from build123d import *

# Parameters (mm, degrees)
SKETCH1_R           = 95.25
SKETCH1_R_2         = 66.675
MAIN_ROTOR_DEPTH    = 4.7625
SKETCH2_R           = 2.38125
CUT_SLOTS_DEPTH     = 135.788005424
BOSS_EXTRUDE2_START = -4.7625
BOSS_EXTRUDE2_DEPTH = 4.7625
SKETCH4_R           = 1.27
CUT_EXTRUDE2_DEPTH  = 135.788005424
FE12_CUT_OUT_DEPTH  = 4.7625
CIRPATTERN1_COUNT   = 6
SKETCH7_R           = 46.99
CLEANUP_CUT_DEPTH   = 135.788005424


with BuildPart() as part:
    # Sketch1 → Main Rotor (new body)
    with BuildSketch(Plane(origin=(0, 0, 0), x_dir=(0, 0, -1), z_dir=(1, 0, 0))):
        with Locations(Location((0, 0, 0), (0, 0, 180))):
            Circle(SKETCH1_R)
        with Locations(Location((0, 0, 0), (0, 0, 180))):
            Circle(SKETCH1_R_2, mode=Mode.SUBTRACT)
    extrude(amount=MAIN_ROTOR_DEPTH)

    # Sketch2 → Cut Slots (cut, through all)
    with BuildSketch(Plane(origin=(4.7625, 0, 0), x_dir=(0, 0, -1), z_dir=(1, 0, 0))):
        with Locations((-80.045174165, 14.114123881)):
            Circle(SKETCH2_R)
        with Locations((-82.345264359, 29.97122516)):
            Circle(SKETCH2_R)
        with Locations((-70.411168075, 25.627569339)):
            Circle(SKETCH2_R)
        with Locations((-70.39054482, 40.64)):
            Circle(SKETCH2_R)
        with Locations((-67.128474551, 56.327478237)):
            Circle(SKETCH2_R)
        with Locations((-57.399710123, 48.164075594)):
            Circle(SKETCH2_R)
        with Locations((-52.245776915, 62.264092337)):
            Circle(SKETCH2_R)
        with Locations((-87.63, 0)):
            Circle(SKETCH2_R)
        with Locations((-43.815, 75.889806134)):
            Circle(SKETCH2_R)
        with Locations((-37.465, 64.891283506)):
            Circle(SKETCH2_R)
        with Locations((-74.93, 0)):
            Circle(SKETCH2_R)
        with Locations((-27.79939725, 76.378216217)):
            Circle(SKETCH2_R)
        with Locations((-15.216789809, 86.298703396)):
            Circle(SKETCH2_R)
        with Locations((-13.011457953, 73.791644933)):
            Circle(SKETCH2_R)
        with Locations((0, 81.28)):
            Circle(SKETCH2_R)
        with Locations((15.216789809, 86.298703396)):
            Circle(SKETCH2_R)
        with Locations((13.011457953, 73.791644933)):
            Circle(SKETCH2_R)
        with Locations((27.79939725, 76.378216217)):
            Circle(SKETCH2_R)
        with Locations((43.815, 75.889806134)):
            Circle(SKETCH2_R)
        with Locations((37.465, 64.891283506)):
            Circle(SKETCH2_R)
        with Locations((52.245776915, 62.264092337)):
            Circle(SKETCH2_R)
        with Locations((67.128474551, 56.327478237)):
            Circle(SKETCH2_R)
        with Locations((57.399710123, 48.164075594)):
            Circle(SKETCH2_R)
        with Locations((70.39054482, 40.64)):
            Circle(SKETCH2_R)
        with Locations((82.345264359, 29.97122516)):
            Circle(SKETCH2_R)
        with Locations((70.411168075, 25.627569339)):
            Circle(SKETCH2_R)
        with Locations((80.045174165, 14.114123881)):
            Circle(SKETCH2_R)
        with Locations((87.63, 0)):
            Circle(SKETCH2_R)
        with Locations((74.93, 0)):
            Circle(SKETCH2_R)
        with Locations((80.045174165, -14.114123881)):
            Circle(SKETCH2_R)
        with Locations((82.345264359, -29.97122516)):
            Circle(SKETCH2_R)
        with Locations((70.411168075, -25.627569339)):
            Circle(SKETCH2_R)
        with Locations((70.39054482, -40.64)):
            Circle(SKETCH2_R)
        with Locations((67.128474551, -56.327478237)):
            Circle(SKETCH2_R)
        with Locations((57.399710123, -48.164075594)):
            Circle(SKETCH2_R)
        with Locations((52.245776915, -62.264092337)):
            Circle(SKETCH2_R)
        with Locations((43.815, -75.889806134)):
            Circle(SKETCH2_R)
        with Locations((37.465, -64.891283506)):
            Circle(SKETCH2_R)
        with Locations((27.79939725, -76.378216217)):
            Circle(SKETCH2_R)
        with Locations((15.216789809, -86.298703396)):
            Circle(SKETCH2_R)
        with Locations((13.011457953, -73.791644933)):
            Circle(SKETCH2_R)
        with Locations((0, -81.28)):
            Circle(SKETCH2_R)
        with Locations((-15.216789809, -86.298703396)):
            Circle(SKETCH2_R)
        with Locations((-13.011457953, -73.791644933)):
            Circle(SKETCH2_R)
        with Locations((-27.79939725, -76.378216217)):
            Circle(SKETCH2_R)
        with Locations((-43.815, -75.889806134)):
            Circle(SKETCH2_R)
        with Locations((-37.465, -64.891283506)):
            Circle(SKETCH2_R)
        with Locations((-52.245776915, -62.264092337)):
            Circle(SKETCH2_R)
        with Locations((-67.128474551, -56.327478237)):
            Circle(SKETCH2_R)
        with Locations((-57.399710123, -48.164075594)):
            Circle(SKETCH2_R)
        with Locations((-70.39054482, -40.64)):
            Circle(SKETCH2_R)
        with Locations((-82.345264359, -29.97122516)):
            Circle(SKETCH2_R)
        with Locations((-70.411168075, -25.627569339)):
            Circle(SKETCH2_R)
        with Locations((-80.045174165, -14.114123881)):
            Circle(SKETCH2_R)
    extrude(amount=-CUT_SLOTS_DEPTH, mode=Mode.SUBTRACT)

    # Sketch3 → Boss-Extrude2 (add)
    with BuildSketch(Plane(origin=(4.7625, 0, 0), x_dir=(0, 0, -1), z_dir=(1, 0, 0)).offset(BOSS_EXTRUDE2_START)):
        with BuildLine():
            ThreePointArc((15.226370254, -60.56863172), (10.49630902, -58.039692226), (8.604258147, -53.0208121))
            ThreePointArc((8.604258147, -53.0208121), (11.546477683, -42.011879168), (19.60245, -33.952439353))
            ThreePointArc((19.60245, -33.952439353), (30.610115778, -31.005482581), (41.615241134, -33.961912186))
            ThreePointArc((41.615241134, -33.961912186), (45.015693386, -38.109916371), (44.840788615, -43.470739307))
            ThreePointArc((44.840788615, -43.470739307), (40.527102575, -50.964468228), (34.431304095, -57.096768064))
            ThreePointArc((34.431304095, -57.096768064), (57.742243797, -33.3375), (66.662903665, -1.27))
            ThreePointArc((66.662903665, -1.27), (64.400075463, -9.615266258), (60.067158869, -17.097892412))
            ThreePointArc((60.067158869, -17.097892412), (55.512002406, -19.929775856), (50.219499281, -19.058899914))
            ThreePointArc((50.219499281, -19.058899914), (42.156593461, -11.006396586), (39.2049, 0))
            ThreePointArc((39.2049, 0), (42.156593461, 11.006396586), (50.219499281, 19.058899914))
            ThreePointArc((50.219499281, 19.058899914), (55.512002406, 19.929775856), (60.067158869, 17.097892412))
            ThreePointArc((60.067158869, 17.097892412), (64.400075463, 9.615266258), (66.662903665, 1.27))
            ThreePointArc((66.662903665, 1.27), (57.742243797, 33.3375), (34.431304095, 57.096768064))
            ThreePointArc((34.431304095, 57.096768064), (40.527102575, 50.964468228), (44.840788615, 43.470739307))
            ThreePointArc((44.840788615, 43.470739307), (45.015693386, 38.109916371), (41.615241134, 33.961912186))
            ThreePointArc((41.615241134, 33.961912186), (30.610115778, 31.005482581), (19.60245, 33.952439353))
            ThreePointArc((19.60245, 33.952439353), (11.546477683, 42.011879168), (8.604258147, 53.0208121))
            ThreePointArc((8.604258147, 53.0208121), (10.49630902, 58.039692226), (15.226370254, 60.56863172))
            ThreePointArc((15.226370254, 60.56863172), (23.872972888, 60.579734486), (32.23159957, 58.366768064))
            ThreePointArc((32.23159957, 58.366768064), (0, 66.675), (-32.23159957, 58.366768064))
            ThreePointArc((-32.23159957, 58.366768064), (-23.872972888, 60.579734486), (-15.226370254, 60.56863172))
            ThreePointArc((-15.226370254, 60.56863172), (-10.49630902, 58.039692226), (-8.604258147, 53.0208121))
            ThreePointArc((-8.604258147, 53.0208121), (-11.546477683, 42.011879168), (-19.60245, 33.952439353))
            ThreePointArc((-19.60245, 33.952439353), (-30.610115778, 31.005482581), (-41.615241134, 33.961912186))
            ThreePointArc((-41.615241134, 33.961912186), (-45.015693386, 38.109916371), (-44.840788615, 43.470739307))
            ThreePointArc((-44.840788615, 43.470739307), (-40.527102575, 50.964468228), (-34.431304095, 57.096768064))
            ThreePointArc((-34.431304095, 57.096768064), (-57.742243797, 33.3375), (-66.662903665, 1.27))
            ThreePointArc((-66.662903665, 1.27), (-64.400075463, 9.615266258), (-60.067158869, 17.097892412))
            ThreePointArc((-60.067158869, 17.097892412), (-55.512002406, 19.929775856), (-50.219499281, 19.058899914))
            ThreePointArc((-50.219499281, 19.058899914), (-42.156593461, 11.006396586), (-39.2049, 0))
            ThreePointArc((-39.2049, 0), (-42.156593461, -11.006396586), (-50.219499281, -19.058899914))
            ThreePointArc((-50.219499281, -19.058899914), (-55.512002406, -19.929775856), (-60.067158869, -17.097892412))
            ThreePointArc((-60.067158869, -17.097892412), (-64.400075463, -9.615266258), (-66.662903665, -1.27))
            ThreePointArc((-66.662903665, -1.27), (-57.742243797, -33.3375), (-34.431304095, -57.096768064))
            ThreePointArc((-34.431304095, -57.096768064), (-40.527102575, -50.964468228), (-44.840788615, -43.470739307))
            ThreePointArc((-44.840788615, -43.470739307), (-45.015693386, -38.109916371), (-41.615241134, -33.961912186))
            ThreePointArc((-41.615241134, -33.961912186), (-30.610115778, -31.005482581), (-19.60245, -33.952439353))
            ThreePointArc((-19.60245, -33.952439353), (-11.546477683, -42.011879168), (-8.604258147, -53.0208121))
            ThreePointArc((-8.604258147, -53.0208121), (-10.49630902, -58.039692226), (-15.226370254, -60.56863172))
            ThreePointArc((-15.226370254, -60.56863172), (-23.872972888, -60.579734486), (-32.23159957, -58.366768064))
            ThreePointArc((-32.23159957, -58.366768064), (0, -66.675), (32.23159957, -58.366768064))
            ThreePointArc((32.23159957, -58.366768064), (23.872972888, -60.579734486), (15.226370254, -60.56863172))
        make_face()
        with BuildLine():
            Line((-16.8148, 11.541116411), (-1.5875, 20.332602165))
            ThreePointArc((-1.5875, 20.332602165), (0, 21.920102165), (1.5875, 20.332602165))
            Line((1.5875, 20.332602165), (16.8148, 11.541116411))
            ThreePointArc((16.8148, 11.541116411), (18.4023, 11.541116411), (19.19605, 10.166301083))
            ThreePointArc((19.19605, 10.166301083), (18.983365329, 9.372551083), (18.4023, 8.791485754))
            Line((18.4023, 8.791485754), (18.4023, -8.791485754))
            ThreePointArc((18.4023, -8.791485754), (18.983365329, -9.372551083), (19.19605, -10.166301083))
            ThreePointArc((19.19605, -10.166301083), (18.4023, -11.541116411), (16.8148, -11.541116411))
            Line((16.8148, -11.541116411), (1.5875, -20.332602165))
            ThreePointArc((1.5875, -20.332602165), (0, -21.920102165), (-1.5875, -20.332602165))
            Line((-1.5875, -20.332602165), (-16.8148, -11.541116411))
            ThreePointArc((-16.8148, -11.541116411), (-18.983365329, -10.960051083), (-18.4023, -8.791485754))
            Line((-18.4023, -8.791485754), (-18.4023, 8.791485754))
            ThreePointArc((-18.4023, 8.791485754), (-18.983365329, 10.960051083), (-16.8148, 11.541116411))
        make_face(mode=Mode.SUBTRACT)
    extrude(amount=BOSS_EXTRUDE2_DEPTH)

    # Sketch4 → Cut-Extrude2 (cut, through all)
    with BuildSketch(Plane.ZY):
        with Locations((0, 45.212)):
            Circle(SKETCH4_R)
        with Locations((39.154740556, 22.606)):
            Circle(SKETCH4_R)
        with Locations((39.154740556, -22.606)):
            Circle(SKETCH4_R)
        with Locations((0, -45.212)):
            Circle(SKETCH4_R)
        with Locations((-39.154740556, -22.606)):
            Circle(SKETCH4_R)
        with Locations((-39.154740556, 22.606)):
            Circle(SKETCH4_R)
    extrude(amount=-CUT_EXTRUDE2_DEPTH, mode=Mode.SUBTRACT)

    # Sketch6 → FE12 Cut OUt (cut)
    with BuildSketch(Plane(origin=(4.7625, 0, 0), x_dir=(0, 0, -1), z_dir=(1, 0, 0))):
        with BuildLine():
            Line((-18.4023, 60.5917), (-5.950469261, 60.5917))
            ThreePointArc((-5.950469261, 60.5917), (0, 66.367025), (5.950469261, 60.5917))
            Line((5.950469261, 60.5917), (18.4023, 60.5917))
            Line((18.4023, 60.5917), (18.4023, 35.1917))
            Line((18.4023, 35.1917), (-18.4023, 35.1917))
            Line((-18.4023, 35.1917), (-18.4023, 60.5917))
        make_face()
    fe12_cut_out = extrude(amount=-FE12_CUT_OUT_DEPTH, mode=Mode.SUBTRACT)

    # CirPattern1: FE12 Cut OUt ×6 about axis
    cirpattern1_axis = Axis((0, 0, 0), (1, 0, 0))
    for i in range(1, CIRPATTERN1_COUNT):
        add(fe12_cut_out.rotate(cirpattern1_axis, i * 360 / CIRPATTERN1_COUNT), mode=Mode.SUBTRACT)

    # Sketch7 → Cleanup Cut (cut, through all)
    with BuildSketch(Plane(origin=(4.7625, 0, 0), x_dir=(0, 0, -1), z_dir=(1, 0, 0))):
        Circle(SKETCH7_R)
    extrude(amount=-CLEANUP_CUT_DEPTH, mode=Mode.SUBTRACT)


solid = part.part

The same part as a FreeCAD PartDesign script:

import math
import FreeCAD as App
import Part
import Sketcher

V = App.Vector
Q = App.Units.Quantity

doc = App.newDocument("Part")
params = doc.addObject("Spreadsheet::Sheet", "Params")
for row, (alias, value) in enumerate([
    ("sketch1_diameter", "7.5 in"),
    ("sketch1_diameter2", "5.25 in"),
    ("pad1_length", "0.1875 in"),
    ("sketch2_diameter", "0.1875 in"),
    ("sketch3_radius", "0.3 in"),
    ("sketch3_radius2", "0.866 in"),
    ("sketch3_radius3", "1.3125 in"),
    ("sketch3_radius4", "2.625 in"),
    ("sketch3_radius5", "0.0625 in"),
    ("pad2_length", "0.1875 in"),
    ("sketch4_diameter", "0.1 in"),
    ("sketch5_width", "1 in"),
    ("sketch5_radius", "0.234375 in"),
    ("sketch5_height", "1.449 in"),
    ("pocket3_length", "0.1875 in"),
    ("sketch6_diameter", "3.7 in"),
], start=1):
    params.set(f"A{row}", alias)
    params.set(f"B{row}", "=" + value)
    params.setAlias(f"B{row}", alias)

body = doc.addObject("PartDesign::Body", "Body")
body.AllowCompound = True

# Sketch on YZ plane
sketch1 = body.newObject("Sketcher::SketchObject", "Sketch")
sketch1.AttachmentSupport = (doc.getObject("YZ_Plane"), [""])
sketch1.MapMode = "FlatFace"
sketch1.addGeometry([
    Part.Circle(V(0, 0, 0), V(0, 0, 1), 95),
    Part.Circle(V(0, 0, 0), V(0, 0, 1), 67),
], False)
sketch1.addConstraint([
    Sketcher.Constraint("Coincident", 0, 3, -1, 1),
    Sketcher.Constraint("Coincident", 1, 3, -1, 1),
    Sketcher.Constraint("Diameter", 0, Q("7.5 in")),
    Sketcher.Constraint("Diameter", 1, Q("5.25 in")),
])
sketch1.setExpression("Constraints[2]", "Params.sketch1_diameter")
sketch1.setExpression("Constraints[3]", "Params.sketch1_diameter2")
pad1 = body.newObject("PartDesign::Pad", "Pad")
pad1.Profile = sketch1
pad1.setExpression("Length", "Params.pad1_length")

# Sketch on YZ plane
sketch2 = body.newObject("Sketcher::SketchObject", "Sketch001")
sketch2.AttachmentSupport = (doc.getObject("YZ_Plane"), [""])
sketch2.MapMode = "FlatFace"
sketch2.AttachmentOffset = App.Placement(V(0, 0, 0.1875 * 25.4), App.Rotation())
sketch2.addGeometry([
    Part.Circle(V(14.1, 80, 0), V(0, 0, 1), 2.4),  # 0
    Part.Circle(V(30, 82.3, 0), V(0, 0, 1), 2.4),  # 1
    Part.Circle(V(25.6, 70.4, 0), V(0, 0, 1), 2.4),  # 2
    Part.Circle(V(40.6, 70.4, 0), V(0, 0, 1), 2.4),  # 3
    Part.Circle(V(56.3, 67.1, 0), V(0, 0, 1), 2.4),  # 4
    Part.Circle(V(48.2, 57.4, 0), V(0, 0, 1), 2.4),  # 5
    Part.Circle(V(62.3, 52.2, 0), V(0, 0, 1), 2.4),  # 6
    Part.Circle(V(0, 87.6, 0), V(0, 0, 1), 2.4),  # 7
    Part.Circle(V(75.9, 43.8, 0), V(0, 0, 1), 2.4),  # 8
    Part.Circle(V(64.9, 37.5, 0), V(0, 0, 1), 2.4),  # 9
    Part.Circle(V(0, 74.9, 0), V(0, 0, 1), 2.4),  # 10
    Part.Circle(V(76.4, 27.8, 0), V(0, 0, 1), 2.4),  # 11
    Part.Circle(V(86.3, 15.2, 0), V(0, 0, 1), 2.4),  # 12
    Part.Circle(V(73.8, 13, 0), V(0, 0, 1), 2.4),  # 13
    Part.Circle(V(81.3, 0, 0), V(0, 0, 1), 2.4),  # 14
    Part.Circle(V(86.3, -15.2, 0), V(0, 0, 1), 2.4),  # 15
    Part.Circle(V(73.8, -13, 0), V(0, 0, 1), 2.4),  # 16
    Part.Circle(V(76.4, -27.8, 0), V(0, 0, 1), 2.4),  # 17
    Part.Circle(V(75.9, -43.8, 0), V(0, 0, 1), 2.4),  # 18
    Part.Circle(V(64.9, -37.5, 0), V(0, 0, 1), 2.4),  # 19
    Part.Circle(V(62.3, -52.2, 0), V(0, 0, 1), 2.4),  # 20
    Part.Circle(V(56.3, -67.1, 0), V(0, 0, 1), 2.4),  # 21
    Part.Circle(V(48.2, -57.4, 0), V(0, 0, 1), 2.4),  # 22
    Part.Circle(V(40.6, -70.4, 0), V(0, 0, 1), 2.4),  # 23
    Part.Circle(V(30, -82.3, 0), V(0, 0, 1), 2.4),  # 24
    Part.Circle(V(25.6, -70.4, 0), V(0, 0, 1), 2.4),  # 25
    Part.Circle(V(14.1, -80, 0), V(0, 0, 1), 2.4),  # 26
    Part.Circle(V(0, -87.6, 0), V(0, 0, 1), 2.4),  # 27
    Part.Circle(V(0, -74.9, 0), V(0, 0, 1), 2.4),  # 28
    Part.Circle(V(-14.1, -80, 0), V(0, 0, 1), 2.4),  # 29
    Part.Circle(V(-30, -82.3, 0), V(0, 0, 1), 2.4),  # 30
    Part.Circle(V(-25.6, -70.4, 0), V(0, 0, 1), 2.4),  # 31
    Part.Circle(V(-40.6, -70.4, 0), V(0, 0, 1), 2.4),  # 32
    Part.Circle(V(-56.3, -67.1, 0), V(0, 0, 1), 2.4),  # 33
    Part.Circle(V(-48.2, -57.4, 0), V(0, 0, 1), 2.4),  # 34
    Part.Circle(V(-62.3, -52.2, 0), V(0, 0, 1), 2.4),  # 35
    Part.Circle(V(-75.9, -43.8, 0), V(0, 0, 1), 2.4),  # 36
    Part.Circle(V(-64.9, -37.5, 0), V(0, 0, 1), 2.4),  # 37
    Part.Circle(V(-76.4, -27.8, 0), V(0, 0, 1), 2.4),  # 38
    Part.Circle(V(-86.3, -15.2, 0), V(0, 0, 1), 2.4),  # 39
    Part.Circle(V(-73.8, -13, 0), V(0, 0, 1), 2.4),  # 40
    Part.Circle(V(-81.3, 0, 0), V(0, 0, 1), 2.4),  # 41
    Part.Circle(V(-86.3, 15.2, 0), V(0, 0, 1), 2.4),  # 42
    Part.Circle(V(-73.8, 13, 0), V(0, 0, 1), 2.4),  # 43
    Part.Circle(V(-76.4, 27.8, 0), V(0, 0, 1), 2.4),  # 44
    Part.Circle(V(-75.9, 43.8, 0), V(0, 0, 1), 2.4),  # 45
    Part.Circle(V(-64.9, 37.5, 0), V(0, 0, 1), 2.4),  # 46
    Part.Circle(V(-62.3, 52.2, 0), V(0, 0, 1), 2.4),  # 47
    Part.Circle(V(-56.3, 67.1, 0), V(0, 0, 1), 2.4),  # 48
    Part.Circle(V(-48.2, 57.4, 0), V(0, 0, 1), 2.4),  # 49
    Part.Circle(V(-40.6, 70.4, 0), V(0, 0, 1), 2.4),  # 50
    Part.Circle(V(-30, 82.3, 0), V(0, 0, 1), 2.4),  # 51
    Part.Circle(V(-25.6, 70.4, 0), V(0, 0, 1), 2.4),  # 52
    Part.Circle(V(-14.1, 80, 0), V(0, 0, 1), 2.4),  # 53
], False)
sketch2.addConstraint([
    Sketcher.Constraint("Equal", 0, 1),
    Sketcher.Constraint("Equal", 1, 2),
    Sketcher.Constraint("Equal", 2, 3),
    Sketcher.Constraint("Equal", 3, 4),
    Sketcher.Constraint("Equal", 4, 5),
    Sketcher.Constraint("Equal", 5, 6),
    Sketcher.Constraint("Equal", 6, 7),
    Sketcher.Constraint("Equal", 7, 8),
    Sketcher.Constraint("Equal", 8, 9),
    Sketcher.Constraint("Equal", 9, 10),
    Sketcher.Constraint("Equal", 10, 11),
    Sketcher.Constraint("Equal", 11, 12),
    Sketcher.Constraint("Equal", 12, 13),
    Sketcher.Constraint("Equal", 13, 14),
    Sketcher.Constraint("Equal", 14, 15),
    Sketcher.Constraint("Equal", 15, 16),
    Sketcher.Constraint("Equal", 16, 17),
    Sketcher.Constraint("Equal", 17, 18),
    Sketcher.Constraint("Equal", 18, 19),
    Sketcher.Constraint("Equal", 19, 20),
    Sketcher.Constraint("Equal", 20, 21),
    Sketcher.Constraint("Equal", 21, 22),
    Sketcher.Constraint("Equal", 22, 23),
    Sketcher.Constraint("Equal", 23, 24),
    Sketcher.Constraint("Equal", 24, 25),
    Sketcher.Constraint("Equal", 25, 26),
    Sketcher.Constraint("Equal", 26, 27),
    Sketcher.Constraint("Equal", 27, 28),
    Sketcher.Constraint("Equal", 28, 29),
    Sketcher.Constraint("Equal", 29, 30),
    Sketcher.Constraint("Equal", 30, 31),
    Sketcher.Constraint("Equal", 31, 32),
    Sketcher.Constraint("Equal", 32, 33),
    Sketcher.Constraint("Equal", 33, 34),
    Sketcher.Constraint("Equal", 34, 35),
    Sketcher.Constraint("Equal", 35, 36),
    Sketcher.Constraint("Equal", 36, 37),
    Sketcher.Constraint("Equal", 37, 38),
    Sketcher.Constraint("Equal", 38, 39),
    Sketcher.Constraint("Equal", 39, 40),
    Sketcher.Constraint("Equal", 40, 41),
    Sketcher.Constraint("Equal", 41, 42),
    Sketcher.Constraint("Equal", 42, 43),
    Sketcher.Constraint("Equal", 43, 44),
    Sketcher.Constraint("Equal", 44, 45),
    Sketcher.Constraint("Equal", 45, 46),
    Sketcher.Constraint("Equal", 46, 47),
    Sketcher.Constraint("Equal", 47, 48),
    Sketcher.Constraint("Equal", 48, 49),
    Sketcher.Constraint("Equal", 49, 50),
    Sketcher.Constraint("Equal", 50, 51),
    Sketcher.Constraint("Equal", 51, 52),
    Sketcher.Constraint("Equal", 52, 53),
    Sketcher.Constraint("Symmetric", 7, 3, 27, 3, -1, 1),
    Sketcher.Constraint("Symmetric", 10, 3, 28, 3, -1, 1),
    Sketcher.Constraint("Symmetric", 0, 3, 29, 3, -1, 1),
    Sketcher.Constraint("Symmetric", 1, 3, 30, 3, -1, 1),
    Sketcher.Constraint("Symmetric", 2, 3, 31, 3, -1, 1),
    Sketcher.Constraint("Symmetric", 3, 3, 32, 3, -1, 1),
    Sketcher.Constraint("Symmetric", 4, 3, 33, 3, -1, 1),
    Sketcher.Constraint("Symmetric", 5, 3, 34, 3, -1, 1),
    Sketcher.Constraint("Symmetric", 6, 3, 35, 3, -1, 1),
    Sketcher.Constraint("Symmetric", 8, 3, 36, 3, -1, 1),
    Sketcher.Constraint("Symmetric", 9, 3, 37, 3, -1, 1),
    Sketcher.Constraint("Symmetric", 11, 3, 38, 3, -1, 1),
    Sketcher.Constraint("Symmetric", 12, 3, 39, 3, -1, 1),
    Sketcher.Constraint("Symmetric", 13, 3, 40, 3, -1, 1),
    Sketcher.Constraint("Symmetric", 14, 3, 41, 3, -1, 1),
    Sketcher.Constraint("Symmetric", 15, 3, 42, 3, -1, 1),
    Sketcher.Constraint("Symmetric", 16, 3, 43, 3, -1, 1),
    Sketcher.Constraint("Symmetric", 17, 3, 44, 3, -1, 1),
    Sketcher.Constraint("Symmetric", 18, 3, 45, 3, -1, 1),
    Sketcher.Constraint("Symmetric", 19, 3, 46, 3, -1, 1),
    Sketcher.Constraint("Symmetric", 20, 3, 47, 3, -1, 1),
    Sketcher.Constraint("Symmetric", 21, 3, 48, 3, -1, 1),
    Sketcher.Constraint("Symmetric", 22, 3, 49, 3, -1, 1),
    Sketcher.Constraint("Symmetric", 23, 3, 50, 3, -1, 1),
    Sketcher.Constraint("Symmetric", 24, 3, 51, 3, -1, 1),
    Sketcher.Constraint("Symmetric", 25, 3, 52, 3, -1, 1),
    Sketcher.Constraint("Symmetric", 26, 3, 53, 3, -1, 1),
    Sketcher.Constraint("Symmetric", 26, 3, 29, 3, -2),
    Sketcher.Constraint("Symmetric", 24, 3, 30, 3, -2),
    Sketcher.Constraint("Symmetric", 25, 3, 31, 3, -2),
    Sketcher.Constraint("Symmetric", 23, 3, 32, 3, -2),
    Sketcher.Constraint("Symmetric", 21, 3, 33, 3, -2),
    Sketcher.Constraint("Symmetric", 22, 3, 34, 3, -2),
    Sketcher.Constraint("Symmetric", 20, 3, 35, 3, -2),
    Sketcher.Constraint("Symmetric", 18, 3, 36, 3, -2),
    Sketcher.Constraint("Symmetric", 19, 3, 37, 3, -2),
    Sketcher.Constraint("Symmetric", 17, 3, 38, 3, -2),
    Sketcher.Constraint("Symmetric", 15, 3, 39, 3, -2),
    Sketcher.Constraint("Symmetric", 16, 3, 40, 3, -2),
    Sketcher.Constraint("PointOnObject", 7, 3, -2),
    Sketcher.Constraint("PointOnObject", 10, 3, -2),
    Sketcher.Constraint("PointOnObject", 14, 3, -1),
    Sketcher.Constraint("Diameter", 0, Q("0.1875 in")),
    Sketcher.Constraint("DistanceX", -1, 1, 3, 3, Q("1.6 in")),
    Sketcher.Constraint("DistanceX", -1, 1, 14, 3, Q("3.2 in")),
    Sketcher.Constraint("DistanceY", 10, 3, 7, 3, Q("0.5 in")),
    Sketcher.Constraint("DistanceY", -1, 1, 7, 3, Q("3.45 in")),
    Sketcher.Constraint("DistanceY", 9, 3, 8, 3, Q("0.25 in")),
    Sketcher.Constraint("DistanceY", -1, 1, 8, 3, Q("1.725 in")),
    Sketcher.Constraint("DistanceX", 0, 3, 1, 3, Q("15.857101 mm")),
    Sketcher.Constraint("DistanceY", 4, 3, 0, 3, Q("12.9167 mm")),
    Sketcher.Constraint("DistanceX", -1, 1, 2, 3, Q("25.627569 mm")),
    Sketcher.Constraint("DistanceY", -1, 1, 2, 3, Q("70.411168 mm")),
    Sketcher.Constraint("DistanceX", -1, 1, 4, 3, Q("56.327478 mm")),
    Sketcher.Constraint("DistanceY", -1, 1, 5, 3, Q("57.39971 mm")),
    Sketcher.Constraint("DistanceY", -1, 1, 12, 3, Q("15.21679 mm")),
    Sketcher.Constraint("DistanceY", 0, 3, 1, 3, Q("2.30009 mm")),
    Sketcher.Constraint("DistanceY", 3, 3, 1, 3, Q("11.95472 mm")),
    Sketcher.Constraint("DistanceX", 1, 3, 5, 3, Q("18.19285 mm")),
    Sketcher.Constraint("DistanceY", 6, 3, 2, 3, Q("18.165391 mm")),
    Sketcher.Constraint("DistanceX", 5, 3, 8, 3, Q("27.725731 mm")),
    Sketcher.Constraint("DistanceX", 6, 3, 9, 3, Q("2.627191 mm")),
    Sketcher.Constraint("DistanceX", 8, 3, 11, 3, Q("0.48841 mm")),
    Sketcher.Constraint("DistanceY", 11, 3, 6, 3, Q("24.44638 mm")),
    Sketcher.Constraint("DistanceX", 9, 3, 12, 3, Q("21.40742 mm")),
    Sketcher.Constraint("DistanceX", 13, 3, 12, 3, Q("12.507058 mm")),
    Sketcher.Constraint("DistanceY", 13, 3, 12, 3, Q("2.205332 mm")),
    Sketcher.Constraint("DistanceX", 13, 3, 11, 3, Q("2.586571 mm")),
    Sketcher.Constraint("DistanceX", 29, 3, 24, 3, Q("44.085349 mm")),
    Sketcher.Constraint("DistanceY", -1, 1, 0, 3, Q("80.045174 mm")),
])
sketch2.setExpression("Constraints[95]", "Params.sketch2_diameter")
pocket1 = body.newObject("PartDesign::Pocket", "Pocket")
pocket1.Profile = sketch2
pocket1.Type = "ThroughAll"

# Sketch on YZ plane
sketch3 = body.newObject("Sketcher::SketchObject", "Sketch002")
sketch3.AttachmentSupport = (doc.getObject("YZ_Plane"), [""])
sketch3.MapMode = "FlatFace"
sketch3.addGeometry([
    Part.ArcOfCircle(Part.Circle(V(-53, -16.2, 0), V(0, 0, 1), 7.6), math.radians(90), math.radians(172)),  # 0
    Part.ArcOfCircle(Part.Circle(V(-53, -30.6, 0), V(0, 0, 1), 22), math.radians(30), math.radians(90)),  # 1
    Part.ArcOfCircle(Part.Circle(V(-53, -30.6, 0), V(0, 0, 1), 22), math.radians(-30), math.radians(30)),  # 2
    Part.ArcOfCircle(Part.Circle(V(-40.6, -37.8, 0), V(0, 0, 1), 7.6), math.radians(-112), math.radians(-30)),  # 3
    Part.ArcOfCircle(Part.Circle(V(-30.7, -14, 0), V(0, 0, 1), 33.3), math.radians(-142), math.radians(-112)),  # 4
    Part.ArcOfCircle(Part.Circle(V(0, 0, 0), V(0, 0, 1), 66.7), math.radians(-149), math.radians(-91)),  # 5
    Part.ArcOfCircle(Part.Circle(V(3.2, -33.6, 0), V(0, 0, 1), 33.3), math.radians(-128), math.radians(-98)),  # 6
    Part.ArcOfCircle(Part.Circle(V(-12.5, -54, 0), V(0, 0, 1), 7.6), math.radians(150), math.radians(232)),  # 7
    Part.ArcOfCircle(Part.Circle(V(0, -61.2, 0), V(0, 0, 1), 22), math.radians(90), math.radians(150)),  # 8
    Part.ArcOfCircle(Part.Circle(V(0, -61.2, 0), V(0, 0, 1), 22), math.radians(30), math.radians(90)),  # 9
    Part.ArcOfCircle(Part.Circle(V(12.5, -54, 0), V(0, 0, 1), 7.6), math.radians(-52), math.radians(30)),  # 10
    Part.ArcOfCircle(Part.Circle(V(-3.2, -33.6, 0), V(0, 0, 1), 33.3), math.radians(-82), math.radians(-52)),  # 11
    Part.ArcOfCircle(Part.Circle(V(0, 0, 0), V(0, 0, 1), 66.7), math.radians(-89), math.radians(-31)),  # 12
    Part.ArcOfCircle(Part.Circle(V(30.7, -14, 0), V(0, 0, 1), 33.3), math.radians(-68), math.radians(-38)),  # 13
    Part.ArcOfCircle(Part.Circle(V(40.6, -37.8, 0), V(0, 0, 1), 7.6), math.radians(-150), math.radians(-68)),  # 14
    Part.ArcOfCircle(Part.Circle(V(53, -30.6, 0), V(0, 0, 1), 22), math.radians(150), math.radians(210)),  # 15
    Part.ArcOfCircle(Part.Circle(V(53, -30.6, 0), V(0, 0, 1), 22), math.radians(90), math.radians(150)),  # 16
    Part.ArcOfCircle(Part.Circle(V(53, -16.2, 0), V(0, 0, 1), 7.6), math.radians(8), math.radians(90)),  # 17
    Part.ArcOfCircle(Part.Circle(V(27.5, -19.6, 0), V(0, 0, 1), 33.3), math.radians(-22), math.radians(8)),  # 18
    Part.ArcOfCircle(Part.Circle(V(0, 0, 0), V(0, 0, 1), 66.7), math.radians(-29), math.radians(29)),  # 19
    Part.ArcOfCircle(Part.Circle(V(27.5, 19.6, 0), V(0, 0, 1), 33.3), math.radians(-8), math.radians(22)),  # 20
    Part.ArcOfCircle(Part.Circle(V(53, 16.2, 0), V(0, 0, 1), 7.6), math.radians(-90), math.radians(-8)),  # 21
    Part.ArcOfCircle(Part.Circle(V(53, 30.6, 0), V(0, 0, 1), 22), math.radians(-150), math.radians(-90)),  # 22
    Part.ArcOfCircle(Part.Circle(V(53, 30.6, 0), V(0, 0, 1), 22), math.radians(150), math.radians(210)),  # 23
    Part.ArcOfCircle(Part.Circle(V(40.6, 37.8, 0), V(0, 0, 1), 7.6), math.radians(68), math.radians(150)),  # 24
    Part.ArcOfCircle(Part.Circle(V(30.7, 14, 0), V(0, 0, 1), 33.3), math.radians(38), math.radians(68)),  # 25
    Part.ArcOfCircle(Part.Circle(V(0, 0, 0), V(0, 0, 1), 66.7), math.radians(31), math.radians(89)),  # 26
    Part.ArcOfCircle(Part.Circle(V(-3.2, 33.6, 0), V(0, 0, 1), 33.3), math.radians(52), math.radians(82)),  # 27
    Part.ArcOfCircle(Part.Circle(V(12.5, 54, 0), V(0, 0, 1), 7.6), math.radians(-30), math.radians(52)),  # 28
    Part.ArcOfCircle(Part.Circle(V(0, 61.2, 0), V(0, 0, 1), 22), math.radians(-90), math.radians(-30)),  # 29
    Part.ArcOfCircle(Part.Circle(V(0, 61.2, 0), V(0, 0, 1), 22), math.radians(-150), math.radians(-90)),  # 30
    Part.ArcOfCircle(Part.Circle(V(-12.5, 54, 0), V(0, 0, 1), 7.6), math.radians(128), math.radians(210)),  # 31
    Part.ArcOfCircle(Part.Circle(V(3.2, 33.6, 0), V(0, 0, 1), 33.3), math.radians(98), math.radians(128)),  # 32
    Part.ArcOfCircle(Part.Circle(V(0, 0, 0), V(0, 0, 1), 66.7), math.radians(91), math.radians(149)),  # 33
    Part.ArcOfCircle(Part.Circle(V(-30.7, 14, 0), V(0, 0, 1), 33.3), math.radians(112), math.radians(142)),  # 34
    Part.ArcOfCircle(Part.Circle(V(-40.6, 37.8, 0), V(0, 0, 1), 7.6), math.radians(30), math.radians(112)),  # 35
    Part.ArcOfCircle(Part.Circle(V(-53, 30.6, 0), V(0, 0, 1), 22), math.radians(-30), math.radians(30)),  # 36
    Part.ArcOfCircle(Part.Circle(V(-53, 30.6, 0), V(0, 0, 1), 22), math.radians(-90), math.radians(-30)),  # 37
    Part.ArcOfCircle(Part.Circle(V(-53, 16.2, 0), V(0, 0, 1), 7.6), math.radians(-172), math.radians(-90)),  # 38
    Part.ArcOfCircle(Part.Circle(V(-27.5, 19.6, 0), V(0, 0, 1), 33.3), math.radians(158), math.radians(188)),  # 39
    Part.ArcOfCircle(Part.Circle(V(0, 0, 0), V(0, 0, 1), 66.7), math.radians(151), math.radians(209)),  # 40
    Part.ArcOfCircle(Part.Circle(V(-27.5, -19.6, 0), V(0, 0, 1), 33.3), math.radians(172), math.radians(202)),  # 41
    Part.ArcOfCircle(Part.Circle(V(10.2, 17.6, 0), V(0, 0, 1), 1.6), math.radians(-30), math.radians(150)),  # 42
    Part.LineSegment(V(11.5, 16.8, 0), V(20.3, 1.6, 0)),  # 43
    Part.ArcOfCircle(Part.Circle(V(20.3, 0, 0), V(0, 0, 1), 1.6), math.radians(-90), math.radians(90)),  # 44
    Part.LineSegment(V(20.3, -1.6, 0), V(11.5, -16.8, 0)),  # 45
    Part.ArcOfCircle(Part.Circle(V(10.2, -17.6, 0), V(0, 0, 1), 1.6), math.radians(-90), math.radians(30)),  # 46
    Part.ArcOfCircle(Part.Circle(V(10.2, -17.6, 0), V(0, 0, 1), 1.6), math.radians(-150), math.radians(-90)),  # 47
    Part.LineSegment(V(8.8, -18.4, 0), V(-8.8, -18.4, 0)),  # 48
    Part.ArcOfCircle(Part.Circle(V(-10.2, -17.6, 0), V(0, 0, 1), 1.6), math.radians(-90), math.radians(-30)),  # 49
    Part.ArcOfCircle(Part.Circle(V(-10.2, -17.6, 0), V(0, 0, 1), 1.6), math.radians(150), math.radians(270)),  # 50
    Part.LineSegment(V(-11.5, -16.8, 0), V(-20.3, -1.6, 0)),  # 51
    Part.ArcOfCircle(Part.Circle(V(-20.3, 0, 0), V(0, 0, 1), 1.6), math.radians(90), math.radians(270)),  # 52
    Part.LineSegment(V(-20.3, 1.6, 0), V(-11.5, 16.8, 0)),  # 53
    Part.ArcOfCircle(Part.Circle(V(-10.2, 17.6, 0), V(0, 0, 1), 1.6), math.radians(30), math.radians(210)),  # 54
    Part.LineSegment(V(-8.8, 18.4, 0), V(8.8, 18.4, 0)),  # 55
], False)
sketch3.addConstraint([
    Sketcher.Constraint("Tangent", 0, 1, 1, 2),
    Sketcher.Constraint("Tangent", 1, 1, 2, 2),
    Sketcher.Constraint("Tangent", 2, 1, 3, 2),
    Sketcher.Constraint("Tangent", 3, 1, 4, 2),
    Sketcher.Constraint("Coincident", 4, 1, 5, 1),
    Sketcher.Constraint("Coincident", 5, 2, 6, 2),
    Sketcher.Constraint("Tangent", 6, 1, 7, 2),
    Sketcher.Constraint("Tangent", 7, 1, 8, 2),
    Sketcher.Constraint("Tangent", 8, 1, 9, 2),
    Sketcher.Constraint("Tangent", 9, 1, 10, 2),
    Sketcher.Constraint("Tangent", 10, 1, 11, 2),
    Sketcher.Constraint("Coincident", 11, 1, 12, 1),
    Sketcher.Constraint("Coincident", 12, 2, 13, 2),
    Sketcher.Constraint("Tangent", 13, 1, 14, 2),
    Sketcher.Constraint("Tangent", 14, 1, 15, 2),
    Sketcher.Constraint("Tangent", 15, 1, 16, 2),
    Sketcher.Constraint("Tangent", 16, 1, 17, 2),
    Sketcher.Constraint("Tangent", 17, 1, 18, 2),
    Sketcher.Constraint("Coincident", 18, 1, 19, 1),
    Sketcher.Constraint("Coincident", 19, 2, 20, 2),
    Sketcher.Constraint("Tangent", 20, 1, 21, 2),
    Sketcher.Constraint("Tangent", 21, 1, 22, 2),
    Sketcher.Constraint("Tangent", 22, 1, 23, 2),
    Sketcher.Constraint("Tangent", 23, 1, 24, 2),
    Sketcher.Constraint("Tangent", 24, 1, 25, 2),
    Sketcher.Constraint("Coincident", 25, 1, 26, 1),
    Sketcher.Constraint("Coincident", 26, 2, 27, 2),
    Sketcher.Constraint("Tangent", 27, 1, 28, 2),
    Sketcher.Constraint("Tangent", 28, 1, 29, 2),
    Sketcher.Constraint("Tangent", 29, 1, 30, 2),
    Sketcher.Constraint("Tangent", 30, 1, 31, 2),
    Sketcher.Constraint("Tangent", 31, 1, 32, 2),
    Sketcher.Constraint("Coincident", 32, 1, 33, 1),
    Sketcher.Constraint("Coincident", 33, 2, 34, 2),
    Sketcher.Constraint("Tangent", 34, 1, 35, 2),
    Sketcher.Constraint("Tangent", 35, 1, 36, 2),
    Sketcher.Constraint("Tangent", 36, 1, 37, 2),
    Sketcher.Constraint("Tangent", 37, 1, 38, 2),
    Sketcher.Constraint("Tangent", 38, 1, 39, 2),
    Sketcher.Constraint("Coincident", 39, 1, 40, 1),
    Sketcher.Constraint("Coincident", 40, 2, 41, 2),
    Sketcher.Constraint("Tangent", 41, 1, 0, 2),
    Sketcher.Constraint("Coincident", 42, 1, 43, 1),
    Sketcher.Constraint("Coincident", 43, 2, 44, 2),
    Sketcher.Constraint("Coincident", 44, 1, 45, 1),
    Sketcher.Constraint("Coincident", 45, 2, 46, 2),
    Sketcher.Constraint("Tangent", 46, 1, 47, 2),
    Sketcher.Constraint("Coincident", 47, 1, 48, 1),
    Sketcher.Constraint("Coincident", 48, 2, 49, 2),
    Sketcher.Constraint("Tangent", 49, 1, 50, 2),
    Sketcher.Constraint("Coincident", 50, 1, 51, 1),
    Sketcher.Constraint("Coincident", 51, 2, 52, 2),
    Sketcher.Constraint("Coincident", 52, 1, 53, 1),
    Sketcher.Constraint("Coincident", 53, 2, 54, 2),
    Sketcher.Constraint("Coincident", 54, 1, 55, 1),
    Sketcher.Constraint("Coincident", 55, 2, 42, 2),
    Sketcher.Constraint("Horizontal", 48),
    Sketcher.Constraint("Horizontal", 55),
    Sketcher.Constraint("Coincident", 5, 3, -1, 1),
    Sketcher.Constraint("Coincident", 12, 3, -1, 1),
    Sketcher.Constraint("Coincident", 19, 3, -1, 1),
    Sketcher.Constraint("Coincident", 26, 3, -1, 1),
    Sketcher.Constraint("Coincident", 33, 3, -1, 1),
    Sketcher.Constraint("Coincident", 40, 3, -1, 1),
    Sketcher.Constraint("Equal", 1, 2),
    Sketcher.Constraint("Equal", 0, 3),
    Sketcher.Constraint("Equal", 4, 6),
    Sketcher.Constraint("Equal", 3, 7),
    Sketcher.Constraint("Equal", 2, 8),
    Sketcher.Constraint("Equal", 8, 9),
    Sketcher.Constraint("Equal", 7, 10),
    Sketcher.Constraint("Equal", 6, 11),
    Sketcher.Constraint("Equal", 5, 12),
    Sketcher.Constraint("Equal", 11, 13),
    Sketcher.Constraint("Equal", 10, 14),
    Sketcher.Constraint("Equal", 9, 15),
    Sketcher.Constraint("Equal", 15, 16),
    Sketcher.Constraint("Equal", 14, 17),
    Sketcher.Constraint("Equal", 13, 18),
    Sketcher.Constraint("Equal", 12, 19),
    Sketcher.Constraint("Equal", 18, 20),
    Sketcher.Constraint("Equal", 17, 21),
    Sketcher.Constraint("Equal", 16, 22),
    Sketcher.Constraint("Equal", 22, 23),
    Sketcher.Constraint("Equal", 21, 24),
    Sketcher.Constraint("Equal", 20, 25),
    Sketcher.Constraint("Equal", 19, 26),
    Sketcher.Constraint("Equal", 25, 27),
    Sketcher.Constraint("Equal", 24, 28),
    Sketcher.Constraint("Equal", 23, 29),
    Sketcher.Constraint("Equal", 29, 30),
    Sketcher.Constraint("Equal", 28, 31),
    Sketcher.Constraint("Equal", 27, 32),
    Sketcher.Constraint("Equal", 26, 33),
    Sketcher.Constraint("Equal", 32, 34),
    Sketcher.Constraint("Equal", 31, 35),
    Sketcher.Constraint("Equal", 30, 36),
    Sketcher.Constraint("Equal", 36, 37),
    Sketcher.Constraint("Equal", 35, 38),
    Sketcher.Constraint("Equal", 34, 39),
    Sketcher.Constraint("Equal", 33, 40),
    Sketcher.Constraint("Equal", 39, 41),
    Sketcher.Constraint("Equal", 42, 44),
    Sketcher.Constraint("Equal", 44, 46),
    Sketcher.Constraint("Equal", 46, 47),
    Sketcher.Constraint("Equal", 47, 49),
    Sketcher.Constraint("Equal", 49, 50),
    Sketcher.Constraint("Equal", 50, 52),
    Sketcher.Constraint("Equal", 52, 54),
    Sketcher.Constraint("Symmetric", 0, 3, 21, 3, -1, 1),
    Sketcher.Constraint("Symmetric", 3, 3, 24, 3, -1, 1),
    Sketcher.Constraint("Symmetric", 6, 3, 27, 3, -1, 1),
    Sketcher.Constraint("Symmetric", 8, 3, 29, 3, -1, 1),
    Sketcher.Constraint("Symmetric", 11, 3, 32, 3, -1, 1),
    Sketcher.Constraint("Symmetric", 13, 3, 34, 3, -1, 1),
    Sketcher.Constraint("Symmetric", 15, 3, 36, 3, -1, 1),
    Sketcher.Constraint("Symmetric", 18, 3, 39, 3, -1, 1),
    Sketcher.Constraint("Symmetric", 42, 3, 49, 3, -1, 1),
    Sketcher.Constraint("Symmetric", 44, 3, 52, 3, -1, 1),
    Sketcher.Constraint("Symmetric", 46, 3, 54, 3, -1, 1),
    Sketcher.Constraint("Symmetric", 7, 3, 10, 3, -2),
    Sketcher.Constraint("Symmetric", 4, 3, 13, 3, -2),
    Sketcher.Constraint("Symmetric", 1, 3, 15, 3, -2),
    Sketcher.Constraint("Symmetric", 20, 3, 39, 3, -2),
    Sketcher.Constraint("Symmetric", 46, 3, 49, 3, -2),
    Sketcher.Constraint("Symmetric", 44, 1, 51, 2, -2),
    Sketcher.Constraint("PointOnObject", 8, 1, -2),
    Sketcher.Constraint("PointOnObject", 29, 1, -2),
    Sketcher.Constraint("Parallel", 43, 51),
    Sketcher.Constraint("Parallel", 45, 53),
    Sketcher.Constraint("Horizontal", 6, 3, 11, 3),
    Sketcher.Constraint("Horizontal", 25, 3, 34, 3),
    Sketcher.Constraint("Horizontal", 18, 3, 41, 3),
    Sketcher.Constraint("Horizontal", 1, 1, 15, 1),
    Sketcher.Constraint("Horizontal", 22, 1, 36, 1),
    Sketcher.Constraint("Horizontal", 45, 2, 50, 1),
    Sketcher.Constraint("Horizontal", 42, 1, 53, 2),
    Sketcher.Constraint("Vertical", 15, 1, 22, 1),
    Sketcher.Constraint("Vertical", 44, 3, 43, 2),
    Sketcher.Constraint("Vertical", 43, 2, 44, 1),
    Sketcher.Constraint("Vertical", 47, 3, 46, 1),
    Sketcher.Constraint("Vertical", 54, 3, 49, 1),
    Sketcher.Constraint("Vertical", 48, 2, 54, 1),
    Sketcher.Constraint("Radius", 0, Q("0.3 in")),
    Sketcher.Constraint("Angle", 43, Q("-60 deg")),
    Sketcher.Constraint("Radius", 1, Q("0.866 in")),
    Sketcher.Constraint("Radius", 4, Q("1.3125 in")),
    Sketcher.Constraint("Radius", 5, Q("2.625 in")),
    Sketcher.Constraint("Radius", 42, Q("0.0625 in")),
    Sketcher.Constraint("DistanceX", 5, 2, -1, 1, Q("0.05 in")),
    Sketcher.Constraint("DistanceY", -1, 1, 42, 1, Q("0.662 in")),
    Sketcher.Constraint("DistanceY", 8, 3, -1, 1, Q("2.4095 in")),
    Sketcher.Constraint("DistanceY", 47, 1, -1, 1, Q("0.7245 in")),
    Sketcher.Constraint("DistanceX", 48, 2, 48, 1, Q("17.582972 mm")),
    Sketcher.Constraint("DistanceX", -1, 1, 42, 3, Q("10.166301 mm")),
    Sketcher.Constraint("DistanceX", 7, 1, -1, 1, Q("19.0589 mm")),
    Sketcher.Constraint("DistanceY", 18, 1, -1, 1, Q("32.2316 mm")),
    Sketcher.Constraint("DistanceX", 1, 3, -1, 1, Q("53.001881 mm")),
    Sketcher.Constraint("DistanceY", 1, 3, -1, 1, Q("30.60065 mm")),
    Sketcher.Constraint("DistanceX", -1, 1, 18, 3, Q("27.518228 mm")),
    Sketcher.Constraint("DistanceX", 1, 1, -1, 1, Q("33.952439 mm")),
    Sketcher.Constraint("DistanceY", 2, 1, -1, 1, Q("41.615241 mm")),
    Sketcher.Constraint("DistanceX", 3, 1, -1, 1, Q("43.470739 mm")),
])
sketch3.setExpression("Constraints[143]", "Params.sketch3_radius")
sketch3.setExpression("Constraints[145]", "Params.sketch3_radius2")
sketch3.setExpression("Constraints[146]", "Params.sketch3_radius3")
sketch3.setExpression("Constraints[147]", "Params.sketch3_radius4")
sketch3.setExpression("Constraints[148]", "Params.sketch3_radius5")
pad2 = body.newObject("PartDesign::Pad", "Pad001")
pad2.Profile = sketch3
pad2.setExpression("Length", "Params.pad2_length")

# Sketch on YZ plane
sketch4 = body.newObject("Sketcher::SketchObject", "Sketch003")
sketch4.AttachmentSupport = (doc.getObject("YZ_Plane"), [""])
sketch4.MapMode = "FlatFace"
sketch4.addGeometry([
    Part.Circle(V(45.2, 0, 0), V(0, 0, 1), 1.3),  # 0
    Part.Circle(V(22.6, 39.2, 0), V(0, 0, 1), 1.3),  # 1
    Part.Circle(V(-22.6, 39.2, 0), V(0, 0, 1), 1.3),  # 2
    Part.Circle(V(-45.2, 0, 0), V(0, 0, 1), 1.3),  # 3
    Part.Circle(V(-22.6, -39.2, 0), V(0, 0, 1), 1.3),  # 4
    Part.Circle(V(22.6, -39.2, 0), V(0, 0, 1), 1.3),  # 5
], False)
sketch4.addConstraint([
    Sketcher.Constraint("Equal", 0, 1),
    Sketcher.Constraint("Equal", 1, 2),
    Sketcher.Constraint("Equal", 2, 3),
    Sketcher.Constraint("Equal", 3, 4),
    Sketcher.Constraint("Equal", 4, 5),
    Sketcher.Constraint("Symmetric", 0, 3, 3, 3, -1, 1),
    Sketcher.Constraint("Symmetric", 1, 3, 4, 3, -1, 1),
    Sketcher.Constraint("Symmetric", 2, 3, 5, 3, -1, 1),
    Sketcher.Constraint("Symmetric", 1, 3, 2, 3, -2),
    Sketcher.Constraint("PointOnObject", 0, 3, -1),
    Sketcher.Constraint("Diameter", 0, Q("0.1 in")),
    Sketcher.Constraint("DistanceX", -1, 1, 0, 3, Q("1.78 in")),
    Sketcher.Constraint("DistanceX", -1, 1, 1, 3, Q("0.89 in")),
    Sketcher.Constraint("DistanceY", -1, 1, 1, 3, Q("39.154741 mm")),
])
sketch4.setExpression("Constraints[10]", "Params.sketch4_diameter")
pocket2 = body.newObject("PartDesign::Pocket", "Pocket001")
pocket2.Profile = sketch4
pocket2.Type = "ThroughAll"
pocket2.Reversed = True

# Sketch on YZ plane
sketch5 = body.newObject("Sketcher::SketchObject", "Sketch004")
sketch5.AttachmentSupport = (doc.getObject("YZ_Plane"), [""])
sketch5.MapMode = "FlatFace"
sketch5.AttachmentOffset = App.Placement(V(0, 0, 0.1875 * 25.4), App.Rotation())
sketch5.addGeometry([
    Part.LineSegment(V(61, 6, 0), V(61, 18, 0)),  # 0
    Part.LineSegment(V(61, 18, 0), V(35, 18, 0)),  # 1
    Part.LineSegment(V(35, 18, 0), V(35, -18, 0)),  # 2
    Part.LineSegment(V(35, -18, 0), V(61, -18, 0)),  # 3
    Part.LineSegment(V(61, -18, 0), V(61, -6, 0)),  # 4
    Part.ArcOfCircle(Part.Circle(V(60, 0, 0), V(0, 0, 1), 6), math.radians(-88), math.radians(88)),  # 5
], False)
sketch5.addConstraint([
    Sketcher.Constraint("Coincident", 0, 2, 1, 1),
    Sketcher.Constraint("Coincident", 1, 2, 2, 1),
    Sketcher.Constraint("Coincident", 2, 2, 3, 1),
    Sketcher.Constraint("Coincident", 3, 2, 4, 1),
    Sketcher.Constraint("Coincident", 4, 2, 5, 1),
    Sketcher.Constraint("Coincident", 5, 2, 0, 1),
    Sketcher.Constraint("Vertical", 0),
    Sketcher.Constraint("Horizontal", 1),
    Sketcher.Constraint("Vertical", 2),
    Sketcher.Constraint("Horizontal", 3),
    Sketcher.Constraint("Vertical", 4),
    Sketcher.Constraint("Symmetric", 0, 2, 3, 2, -1),
    Sketcher.Constraint("PointOnObject", 5, 3, -1),
    Sketcher.Constraint("DistanceX", 1, 2, 1, 1, Q("1 in")),
    Sketcher.Constraint("Radius", 5, Q("0.234375 in")),
    Sketcher.Constraint("DistanceY", 2, 2, 2, 1, Q("1.449 in")),
    Sketcher.Constraint("DistanceX", 5, 3, 0, 2, Q("0.007 in")),
    Sketcher.Constraint("DistanceX", -1, 1, 5, 3, Q("2.3785 in")),
])
sketch5.setExpression("Constraints[13]", "Params.sketch5_width")
sketch5.setExpression("Constraints[14]", "Params.sketch5_radius")
sketch5.setExpression("Constraints[15]", "Params.sketch5_height")
pocket3 = body.newObject("PartDesign::Pocket", "Pocket002")
pocket3.Profile = sketch5
pocket3.setExpression("Length", "Params.pocket3_length")
doc.recompute()

polarpattern = body.newObject("PartDesign::PolarPattern", "PolarPattern")
polarpattern.Originals = [pocket3]
polarpattern.Axis = (doc.getObject("X_Axis"), [""])
polarpattern.Angle = 360
polarpattern.Occurrences = 6
body.Tip = polarpattern

# Sketch on YZ plane
sketch6 = body.newObject("Sketcher::SketchObject", "Sketch005")
sketch6.AttachmentSupport = (doc.getObject("YZ_Plane"), [""])
sketch6.MapMode = "FlatFace"
sketch6.AttachmentOffset = App.Placement(V(0, 0, 0.1875 * 25.4), App.Rotation())
sketch6.addGeometry(Part.Circle(V(0, 0, 0), V(0, 0, 1), 47), False)
sketch6.addConstraint([
    Sketcher.Constraint("Coincident", 0, 3, -1, 1),
    Sketcher.Constraint("Diameter", 0, Q("3.7 in")),
])
sketch6.setExpression("Constraints[1]", "Params.sketch6_diameter")
pocket4 = body.newObject("PartDesign::Pocket", "Pocket003")
pocket4.Profile = sketch6
pocket4.Type = "ThroughAll"

doc.recompute()
